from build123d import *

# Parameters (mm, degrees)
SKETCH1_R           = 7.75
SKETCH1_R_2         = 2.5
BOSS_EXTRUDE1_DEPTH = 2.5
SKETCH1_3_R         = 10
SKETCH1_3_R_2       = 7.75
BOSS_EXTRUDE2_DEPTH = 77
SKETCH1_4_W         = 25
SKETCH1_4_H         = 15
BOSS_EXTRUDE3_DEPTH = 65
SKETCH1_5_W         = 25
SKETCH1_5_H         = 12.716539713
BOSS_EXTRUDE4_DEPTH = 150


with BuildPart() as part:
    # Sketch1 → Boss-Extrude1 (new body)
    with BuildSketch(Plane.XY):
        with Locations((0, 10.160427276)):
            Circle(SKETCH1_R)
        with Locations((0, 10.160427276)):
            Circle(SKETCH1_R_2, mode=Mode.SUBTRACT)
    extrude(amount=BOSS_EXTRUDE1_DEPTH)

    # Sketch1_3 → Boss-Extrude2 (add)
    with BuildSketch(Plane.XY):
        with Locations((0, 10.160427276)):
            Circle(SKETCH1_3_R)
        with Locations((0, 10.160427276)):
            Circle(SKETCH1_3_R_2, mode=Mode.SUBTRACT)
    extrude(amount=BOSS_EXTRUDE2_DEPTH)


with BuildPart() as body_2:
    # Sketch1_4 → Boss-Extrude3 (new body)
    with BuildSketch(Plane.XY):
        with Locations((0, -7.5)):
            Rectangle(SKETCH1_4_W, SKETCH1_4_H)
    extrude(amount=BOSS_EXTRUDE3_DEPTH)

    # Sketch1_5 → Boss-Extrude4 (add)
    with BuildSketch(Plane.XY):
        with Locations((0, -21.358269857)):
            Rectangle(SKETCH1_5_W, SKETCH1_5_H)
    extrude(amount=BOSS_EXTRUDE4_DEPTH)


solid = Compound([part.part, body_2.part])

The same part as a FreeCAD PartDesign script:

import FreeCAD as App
import Part
import Sketcher

V = App.Vector
Q = App.Units.Quantity

doc = App.newDocument("Part")
params = doc.addObject("Spreadsheet::Sheet", "Params")
for row, (alias, value) in enumerate([
    ("sketch1_diameter", "5 mm"),
    ("sketch1_diameter2", "15.5 mm"),
    ("pad1_length", "2.5 mm"),
    ("sketch2_diameter", "20 mm"),
    ("sketch2_diameter2", "15.5 mm"),
    ("pad2_length", "77 mm"),
    ("sketch3_width", "25 mm"),
    ("sketch3_height", "15 mm"),
    ("pad3_length", "65 mm"),
    ("sketch4_width", "25 mm"),
    ("pad4_length", "150 mm"),
], start=1):
    params.set(f"A{row}", alias)
    params.set(f"B{row}", "=" + value)
    params.setAlias(f"B{row}", alias)

body = doc.addObject("PartDesign::Body", "Body")

sketch1 = body.newObject("Sketcher::SketchObject", "Sketch")
sketch1.AttachmentSupport = (doc.getObject("XY_Plane"), [""])
sketch1.MapMode = "FlatFace"
sketch1.addGeometry([
    Part.Circle(V(0, 10.160427, 0), V(0, 0, 1), 7.75),
    Part.Circle(V(0, 10.160427, 0), V(0, 0, 1), 2.5),
], False)
sketch1.addConstraint([
    Sketcher.Constraint("Coincident", 1, 3, 0, 3),
    Sketcher.Constraint("PointOnObject", 0, 3, -2),
    Sketcher.Constraint("Diameter", 1, Q("5 mm")),
    Sketcher.Constraint("Diameter", 0, Q("15.5 mm")),
    Sketcher.Constraint("DistanceY", -1, 1, 0, 3, Q("10.160427 mm")),
])
sketch1.setExpression("Constraints[2]", "Params.sketch1_diameter")
sketch1.setExpression("Constraints[3]", "Params.sketch1_diameter2")
pad1 = body.newObject("PartDesign::Pad", "Pad")
pad1.Profile = sketch1
pad1.setExpression("Length", "Params.pad1_length")

sketch2 = body.newObject("Sketcher::SketchObject", "Sketch001")
sketch2.AttachmentSupport = (doc.getObject("XY_Plane"), [""])
sketch2.MapMode = "FlatFace"
sketch2.addGeometry([
    Part.Circle(V(0, 10.160427, 0), V(0, 0, 1), 10),
    Part.Circle(V(0, 10.160427, 0), V(0, 0, 1), 7.75),
], False)
sketch2.addConstraint([
    Sketcher.Constraint("Coincident", 1, 3, 0, 3),
    Sketcher.Constraint("PointOnObject", 0, 3, -2),
    Sketcher.Constraint("Diameter", 0, Q("20 mm")),
    Sketcher.Constraint("Diameter", 1, Q("15.5 mm")),
    Sketcher.Constraint("DistanceY", -1, 1, 0, 3, Q("10.160427 mm")),
])
sketch2.setExpression("Constraints[2]", "Params.sketch2_diameter")
sketch2.setExpression("Constraints[3]", "Params.sketch2_diameter2")
pad2 = body.newObject("PartDesign::Pad", "Pad001")
pad2.Profile = sketch2
pad2.setExpression("Length", "Params.pad2_length")
body2 = doc.addObject("PartDesign::Body", "Body001")

sketch3 = body2.newObject("Sketcher::SketchObject", "Sketch002")
sketch3.AttachmentSupport = (doc.getObject("XY_Plane001"), [""])
sketch3.MapMode = "FlatFace"
sketch3.addGeometry([
    Part.LineSegment(V(-12.5, 0, 0), V(-12.5, -15, 0)),
    Part.LineSegment(V(-12.5, -15, 0), V(12.5, -15, 0)),
    Part.LineSegment(V(12.5, -15, 0), V(12.5, 0, 0)),
    Part.LineSegment(V(12.5, 0, 0), V(-12.5, 0, 0)),
], False)
sketch3.addConstraint([
    Sketcher.Constraint("Coincident", 0, 2, 1, 1),
    Sketcher.Constraint("Coincident", 1, 2, 2, 1),
    Sketcher.Constraint("Coincident", 2, 2, 3, 1),
    Sketcher.Constraint("Coincident", 3, 2, 0, 1),
    Sketcher.Constraint("Vertical", 0),
    Sketcher.Constraint("Horizontal", 1),
    Sketcher.Constraint("Vertical", 2),
    Sketcher.Constraint("Horizontal", 3),
    Sketcher.Constraint("Symmetric", 2, 2, 3, 2, -1, 1),
    Sketcher.Constraint("DistanceX", 1, 1, 1, 2, Q("25 mm")),
    Sketcher.Constraint("DistanceY", 0, 2, 0, 1, Q("15 mm")),
])
sketch3.setExpression("Constraints[9]", "Params.sketch3_width")
sketch3.setExpression("Constraints[10]", "Params.sketch3_height")
pad3 = body2.newObject("PartDesign::Pad", "Pad002")
pad3.Profile = sketch3
pad3.setExpression("Length", "Params.pad3_length")

sketch4 = body2.newObject("Sketcher::SketchObject", "Sketch003")
sketch4.AttachmentSupport = (doc.getObject("XY_Plane001"), [""])
sketch4.MapMode = "FlatFace"
sketch4.addGeometry([
    Part.LineSegment(V(-12.5, -15, 0), V(-12.5, -27.71654, 0)),
    Part.LineSegment(V(-12.5, -27.71654, 0), V(12.5, -27.71654, 0)),
    Part.LineSegment(V(12.5, -27.71654, 0), V(12.5, -15, 0)),
    Part.LineSegment(V(12.5, -15, 0), V(-12.5, -15, 0)),
], False)
sketch4.addConstraint([
    Sketcher.Constraint("Coincident", 0, 2, 1, 1),
    Sketcher.Constraint("Coincident", 1, 2, 2, 1),
    Sketcher.Constraint("Coincident", 2, 2, 3, 1),
    Sketcher.Constraint("Coincident", 3, 2, 0, 1),
    Sketcher.Constraint("Vertical", 0),
    Sketcher.Constraint("Horizontal", 1),
    Sketcher.Constraint("Vertical", 2),
    Sketcher.Constraint("Horizontal", 3),
    Sketcher.Constraint("DistanceX", 1, 1, 1, 2, Q("25 mm")),
    Sketcher.Constraint("DistanceY", 2, 2, -1, 1, Q("15 mm")),
    Sketcher.Constraint("DistanceX", 0, 2, -1, 1, Q("12.5 mm")),
    Sketcher.Constraint("DistanceY", 0, 2, 0, 1, Q("12.71654 mm")),
])
sketch4.setExpression("Constraints[8]", "Params.sketch4_width")
pad4 = body2.newObject("PartDesign::Pad", "Pad003")
pad4.Profile = sketch4
pad4.setExpression("Length", "Params.pad4_length")

doc.recompute()
